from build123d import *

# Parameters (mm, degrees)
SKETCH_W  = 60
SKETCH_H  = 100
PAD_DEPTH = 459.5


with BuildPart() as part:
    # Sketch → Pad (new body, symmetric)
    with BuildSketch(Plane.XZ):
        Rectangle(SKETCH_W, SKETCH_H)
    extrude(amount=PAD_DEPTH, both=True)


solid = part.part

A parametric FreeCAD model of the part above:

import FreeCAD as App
import Part
import Sketcher
from FreeCAD import Vector


def add_polygon(sketch, points):
    """Adds a closed chain of lines whose ends are joined by coincident constraints."""
    first, n = sketch.GeometryCount, len(points)
    for a, b in zip(points, points[1:] + points[:1]):
        sketch.addGeometry(Part.LineSegment(App.Vector(*a, 0), App.Vector(*b, 0)), False)
    for i in range(n):
        sketch.addConstraint(Sketcher.Constraint("Coincident", first + i, 2, first + (i + 1) % n, 1))

doc = App.newDocument("Part")
params = doc.addObject("Spreadsheet::Sheet", "Params")
for row, (alias, value) in enumerate([
    ("sketch1_width", "60 mm"),
    ("sketch1_height", "100 mm"),
    ("pad1_length", "919 mm"),
], start=1):
    params.set(f"A{row}", alias)
    params.set(f"B{row}", "=" + value)
    params.setAlias(f"B{row}", alias)

body = doc.addObject("PartDesign::Body", "Body")

sketch1 = body.newObject("Sketcher::SketchObject", "Sketch")
sketch1.AttachmentSupport = (doc.getObject("XZ_Plane"), [""])
sketch1.MapMode = "FlatFace"
add_polygon(sketch1, [(-30, 50), (-30, -50), (30, -50), (30, 50)])
sketch1.addConstraint([
    Sketcher.Constraint("Vertical", 0),
    Sketcher.Constraint("Horizontal", 1),
    Sketcher.Constraint("Vertical", 2),
    Sketcher.Constraint("Horizontal", 3),
    Sketcher.Constraint("Symmetric", 0, 2, 2, 2, -1, 1),
    Sketcher.Constraint("DistanceX", 1, 1, 1, 2, 60.0),
    Sketcher.Constraint("DistanceY", 0, 2, 0, 1, 100.0),
])
sketch1.setExpression("Constraints[9]", "Params.sketch1_width")
sketch1.setExpression("Constraints[10]", "Params.sketch1_height")
pad1 = body.newObject("PartDesign::Pad", "Pad")
pad1.Profile = sketch1
pad1.setExpression("Length", "Params.pad1_length")
pad1.Midplane = True

doc.recompute()
